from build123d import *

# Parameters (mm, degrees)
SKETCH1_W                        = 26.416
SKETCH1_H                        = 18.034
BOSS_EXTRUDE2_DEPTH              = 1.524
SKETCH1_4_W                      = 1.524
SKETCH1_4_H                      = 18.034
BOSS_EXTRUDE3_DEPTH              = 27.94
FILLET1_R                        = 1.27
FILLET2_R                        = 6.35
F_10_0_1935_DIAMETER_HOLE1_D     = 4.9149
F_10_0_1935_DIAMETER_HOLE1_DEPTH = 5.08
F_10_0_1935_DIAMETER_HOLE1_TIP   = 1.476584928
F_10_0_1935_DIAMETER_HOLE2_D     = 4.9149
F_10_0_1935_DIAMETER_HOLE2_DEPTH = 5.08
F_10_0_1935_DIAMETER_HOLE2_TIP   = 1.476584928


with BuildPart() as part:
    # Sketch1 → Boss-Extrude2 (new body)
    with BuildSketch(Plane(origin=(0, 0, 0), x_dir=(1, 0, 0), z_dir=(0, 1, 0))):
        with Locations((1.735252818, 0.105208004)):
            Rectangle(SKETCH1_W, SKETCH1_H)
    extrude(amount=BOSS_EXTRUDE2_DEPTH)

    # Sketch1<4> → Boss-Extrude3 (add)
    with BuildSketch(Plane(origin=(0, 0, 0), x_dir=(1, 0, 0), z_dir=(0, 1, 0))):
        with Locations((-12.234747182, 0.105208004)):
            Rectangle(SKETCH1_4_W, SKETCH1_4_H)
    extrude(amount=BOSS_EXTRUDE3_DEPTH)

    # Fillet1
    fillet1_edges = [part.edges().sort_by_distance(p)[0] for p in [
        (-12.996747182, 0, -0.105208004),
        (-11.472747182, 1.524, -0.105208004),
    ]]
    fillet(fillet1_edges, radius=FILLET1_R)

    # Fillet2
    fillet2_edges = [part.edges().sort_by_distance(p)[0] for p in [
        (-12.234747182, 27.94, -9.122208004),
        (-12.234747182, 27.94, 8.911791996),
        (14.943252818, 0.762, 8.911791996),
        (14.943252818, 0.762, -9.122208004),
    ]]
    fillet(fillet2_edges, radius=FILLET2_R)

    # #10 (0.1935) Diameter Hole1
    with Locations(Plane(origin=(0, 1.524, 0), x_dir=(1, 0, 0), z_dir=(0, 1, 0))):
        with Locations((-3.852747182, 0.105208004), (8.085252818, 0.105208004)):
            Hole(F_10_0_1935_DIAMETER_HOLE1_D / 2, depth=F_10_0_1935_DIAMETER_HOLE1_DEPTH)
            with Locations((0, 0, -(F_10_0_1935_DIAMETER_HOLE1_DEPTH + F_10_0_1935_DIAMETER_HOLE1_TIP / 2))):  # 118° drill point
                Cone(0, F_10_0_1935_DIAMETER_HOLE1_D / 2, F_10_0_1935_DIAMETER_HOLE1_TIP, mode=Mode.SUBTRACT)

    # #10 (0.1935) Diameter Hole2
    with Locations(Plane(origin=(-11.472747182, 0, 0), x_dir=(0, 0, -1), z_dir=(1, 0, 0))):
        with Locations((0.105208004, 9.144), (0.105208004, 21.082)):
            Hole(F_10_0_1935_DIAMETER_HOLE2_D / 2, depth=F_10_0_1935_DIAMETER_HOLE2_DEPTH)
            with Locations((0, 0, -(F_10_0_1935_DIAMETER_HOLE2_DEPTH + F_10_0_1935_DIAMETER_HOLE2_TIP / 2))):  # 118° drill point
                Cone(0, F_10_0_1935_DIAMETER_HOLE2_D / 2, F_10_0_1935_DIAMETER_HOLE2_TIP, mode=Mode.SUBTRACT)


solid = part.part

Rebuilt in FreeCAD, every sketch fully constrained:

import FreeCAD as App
import Part
import Sketcher

V = App.Vector
Q = App.Units.Quantity


def edges_at(feature, points):
    """Names of the edges that pass closest to the given points."""
    edges = feature.Shape.Edges
    near = lambda p: min(range(len(edges)), key=lambda i: edges[i].distToShape(Part.Vertex(*p))[0])
    return sorted({f"Edge{near(p) + 1}" for p in points})

doc = App.newDocument("Part")
body = doc.addObject("PartDesign::Body", "Body")

# Sketch on XZ plane
sketch1 = doc.addObject("Sketcher::SketchObject", "Sketch")
body.addObject(sketch1)
sketch1.AttachmentSupport = (doc.XZ_Plane, [""])
sketch1.MapMode = "FlatFace"
sketch1.addGeometry([
    Part.LineSegment(V(-11, -9, 0), V(-11, 9, 0)),
    Part.LineSegment(V(-11, 9, 0), V(15, 9, 0)),
    Part.LineSegment(V(15, 9, 0), V(15, -9, 0)),
    Part.LineSegment(V(15, -9, 0), V(-11, -9, 0)),
], False)
sketch1.addConstraint([
    Sketcher.Constraint("Coincident", 0, 2, 1, 1),
    Sketcher.Constraint("Coincident", 1, 2, 2, 1),
    Sketcher.Constraint("Coincident", 2, 2, 3, 1),
    Sketcher.Constraint("Coincident", 3, 2, 0, 1),
    Sketcher.Constraint("Vertical", 0),
    Sketcher.Constraint("Horizontal", 1),
    Sketcher.Constraint("Vertical", 2),
    Sketcher.Constraint("Horizontal", 3),
    Sketcher.Constraint("DistanceX", 1, 1, 1, 2, Q("1.04 in")),
    Sketcher.Constraint("DistanceY", 0, 1, 0, 2, Q("0.71 in")),
    Sketcher.Constraint("DistanceY", -1, 1, 0, 2, 8.911792),
    Sketcher.Constraint("DistanceX", 0, 2, -1, 1, 11.472747),
])
pad1 = doc.addObject("PartDesign::Pad", "Pad")
body.addObject(pad1)
pad1.Profile = sketch1
pad1.Length = Q("0.06 in")
pad1.Reversed = True

# Sketch on XZ plane
sketch2 = doc.addObject("Sketcher::SketchObject", "Sketch001")
body.addObject(sketch2)
sketch2.AttachmentSupport = (doc.XZ_Plane, [""])
sketch2.MapMode = "FlatFace"
sketch2.addGeometry([
    Part.LineSegment(V(-13, -9.1, 0), V(-13, 8.9, 0)),
    Part.LineSegment(V(-13, 8.9, 0), V(-11.5, 8.9, 0)),
    Part.LineSegment(V(-11.5, 8.9, 0), V(-11.5, -9.1, 0)),
    Part.LineSegment(V(-11.5, -9.1, 0), V(-13, -9.1, 0)),
], False)
sketch2.addConstraint([
    Sketcher.Constraint("Coincident", 0, 2, 1, 1),
    Sketcher.Constraint("Coincident", 1, 2, 2, 1),
    Sketcher.Constraint("Coincident", 2, 2, 3, 1),
    Sketcher.Constraint("Coincident", 3, 2, 0, 1),
    Sketcher.Constraint("Vertical", 0),
    Sketcher.Constraint("Horizontal", 1),
    Sketcher.Constraint("Vertical", 2),
    Sketcher.Constraint("Horizontal", 3),
    Sketcher.Constraint("DistanceX", 1, 1, 1, 2, Q("0.06 in")),
    Sketcher.Constraint("DistanceY", 0, 1, 0, 2, Q("0.71 in")),
    Sketcher.Constraint("DistanceY", -1, 1, 0, 2, 8.911792),
    Sketcher.Constraint("DistanceX", 0, 2, -1, 1, 12.996747),
])
pad2 = doc.addObject("PartDesign::Pad", "Pad001")
body.addObject(pad2)
pad2.Profile = sketch2
pad2.Length = Q("1.1 in")
pad2.Reversed = True
doc.recompute()

fillet = doc.addObject("PartDesign::Fillet", "Fillet")
body.addObject(fillet)
fillet.Base = (pad2, edges_at(pad2, [(-12.997, 0, -0.105), (-11.473, 1.524, -0.105)]))
fillet.Radius = Q("0.05 in")
doc.recompute()

fillet2 = doc.addObject("PartDesign::Fillet", "Fillet001")
body.addObject(fillet2)
fillet2.Base = (fillet, edges_at(fillet, [
    (-12.235, 27.94, -9.122),
    (-12.235, 27.94, 8.912),
    (14.943, 0.762, 8.912),
    (14.943, 0.762, -9.122),
]))
fillet2.Radius = Q("0.25 in")

# Sketch on XZ plane
sketch3 = doc.addObject("Sketcher::SketchObject", "Sketch002")
body.addObject(sketch3)
sketch3.AttachmentSupport = (doc.XZ_Plane, [""])
sketch3.MapMode = "FlatFace"
sketch3.AttachmentOffset = App.Placement(V(0, 0, -0.06 * 25.4), App.Rotation())
sketch3.addGeometry([
    Part.Circle(V(-3.9, -0.1, 0), V(0, 0, 1), 2.5),
    Part.Circle(V(8.1, -0.1, 0), V(0, 0, 1), 2.5),
], False)
sketch3.addConstraint([
    Sketcher.Constraint("Equal", 0, 1),
    Sketcher.Constraint("Horizontal", 0, 3, 1, 3),
    Sketcher.Constraint("Diameter", 0, Q("0.1935 in")),
    Sketcher.Constraint("DistanceX", 0, 3, 1, 3, Q("0.47 in")),
    Sketcher.Constraint("DistanceY", 0, 3, -1, 1, 0.105208),
    Sketcher.Constraint("DistanceX", 0, 3, -1, 1, 3.852747),
])
doc.recompute()
hole = doc.addObject("PartDesign::Hole", "Hole")
body.addObject(hole)
hole.Profile = sketch3
hole.ThreadType = "None"
hole.Diameter = Q("0.1935 in")
hole.DepthType = "Dimension"
hole.Depth = Q("0.2 in")
hole.DrillPoint = "Angled"
hole.DrillPointAngle = 118
hole.Reversed = True

# Sketch on YZ plane
sketch4 = doc.addObject("Sketcher::SketchObject", "Sketch003")
body.addObject(sketch4)
sketch4.AttachmentSupport = (doc.YZ_Plane, [""])
sketch4.MapMode = "FlatFace"
sketch4.AttachmentOffset = App.Placement(V(0, 0, -11.472747), App.Rotation())
sketch4.addGeometry([
    Part.Circle(V(9.1, -0.1, 0), V(0, 0, 1), 2.5),
    Part.Circle(V(21.1, -0.1, 0), V(0, 0, 1), 2.5),
], False)
sketch4.addConstraint([
    Sketcher.Constraint("Equal", 0, 1),
    Sketcher.Constraint("Horizontal", 0, 3, 1, 3),
    Sketcher.Constraint("Diameter", 0, Q("0.1935 in")),
    Sketcher.Constraint("DistanceX", -1, 1, 0, 3, Q("0.36 in")),
    Sketcher.Constraint("DistanceX", -1, 1, 1, 3, Q("0.83 in")),
    Sketcher.Constraint("DistanceY", 0, 3, -1, 1, 0.105208),
])
doc.recompute()
hole2 = doc.addObject("PartDesign::Hole", "Hole001")
body.addObject(hole2)
hole2.Profile = sketch4
hole2.ThreadType = "None"
hole2.Diameter = Q("0.1935 in")
hole2.DepthType = "Dimension"
hole2.Depth = Q("0.2 in")
hole2.DrillPoint = "Angled"
hole2.DrillPointAngle = 118

doc.recompute()
